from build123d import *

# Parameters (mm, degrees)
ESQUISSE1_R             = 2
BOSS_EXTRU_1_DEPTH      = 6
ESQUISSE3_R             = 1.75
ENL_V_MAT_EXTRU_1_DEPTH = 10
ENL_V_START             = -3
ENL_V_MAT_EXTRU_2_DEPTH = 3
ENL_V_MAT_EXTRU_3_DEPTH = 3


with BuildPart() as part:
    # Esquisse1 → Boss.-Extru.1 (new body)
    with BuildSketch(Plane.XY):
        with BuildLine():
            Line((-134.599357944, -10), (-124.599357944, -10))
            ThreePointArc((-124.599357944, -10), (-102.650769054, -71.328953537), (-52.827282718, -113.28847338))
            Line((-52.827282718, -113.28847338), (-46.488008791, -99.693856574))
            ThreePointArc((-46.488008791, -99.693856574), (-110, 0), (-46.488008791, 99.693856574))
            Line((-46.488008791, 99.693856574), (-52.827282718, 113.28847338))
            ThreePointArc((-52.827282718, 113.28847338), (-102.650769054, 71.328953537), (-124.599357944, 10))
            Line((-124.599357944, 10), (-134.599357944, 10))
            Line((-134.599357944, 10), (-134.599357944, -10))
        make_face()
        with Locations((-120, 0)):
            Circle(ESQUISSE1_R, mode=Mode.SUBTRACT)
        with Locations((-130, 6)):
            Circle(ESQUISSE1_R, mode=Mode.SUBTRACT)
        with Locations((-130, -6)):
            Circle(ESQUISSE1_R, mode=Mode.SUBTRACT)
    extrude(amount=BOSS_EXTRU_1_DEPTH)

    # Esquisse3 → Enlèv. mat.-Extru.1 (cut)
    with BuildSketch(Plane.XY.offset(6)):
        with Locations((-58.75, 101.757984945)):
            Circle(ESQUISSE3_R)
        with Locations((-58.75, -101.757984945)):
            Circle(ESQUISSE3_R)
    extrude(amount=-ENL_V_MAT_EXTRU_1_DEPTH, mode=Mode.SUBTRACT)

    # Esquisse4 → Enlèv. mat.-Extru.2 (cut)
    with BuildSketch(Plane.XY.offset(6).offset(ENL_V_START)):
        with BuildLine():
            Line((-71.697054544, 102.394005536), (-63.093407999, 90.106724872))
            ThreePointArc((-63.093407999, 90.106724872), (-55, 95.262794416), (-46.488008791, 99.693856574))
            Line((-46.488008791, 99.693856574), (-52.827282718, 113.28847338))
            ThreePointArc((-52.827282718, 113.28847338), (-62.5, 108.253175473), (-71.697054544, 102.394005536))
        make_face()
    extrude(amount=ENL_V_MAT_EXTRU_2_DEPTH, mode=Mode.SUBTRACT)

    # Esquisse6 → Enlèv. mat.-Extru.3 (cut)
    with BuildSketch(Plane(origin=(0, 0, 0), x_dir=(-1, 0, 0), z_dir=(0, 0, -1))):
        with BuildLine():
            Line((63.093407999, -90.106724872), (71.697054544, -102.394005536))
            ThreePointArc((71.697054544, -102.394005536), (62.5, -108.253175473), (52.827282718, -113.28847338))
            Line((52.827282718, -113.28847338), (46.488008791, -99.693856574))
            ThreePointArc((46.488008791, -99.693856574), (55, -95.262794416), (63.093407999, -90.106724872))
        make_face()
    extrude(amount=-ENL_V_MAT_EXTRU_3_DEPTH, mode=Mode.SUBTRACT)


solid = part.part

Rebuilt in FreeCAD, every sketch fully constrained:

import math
import FreeCAD as App
import Part
import Sketcher
from FreeCAD import Vector
Q = App.Units.Quantity

doc = App.newDocument("Part")
body = doc.addObject("PartDesign::Body", "Body")

sketch1 = body.newObject("Sketcher::SketchObject", "Sketch")
sketch1.AttachmentSupport = (doc.getObject("XY_Plane"), [""])
sketch1.MapMode = "FlatFace"
sketch1.addGeometry(Part.LineSegment(Vector(-134.6, -10, 0), Vector(-124.6, -10, 0)), False)
sketch1.addGeometry(Part.ArcOfCircle(Part.Circle(Vector(0, 0, 0), Vector(0, 0, 1), 125), math.radians(-175), math.radians(-115)), False)
sketch1.addGeometry(Part.LineSegment(Vector(-52.8, -113.3, 0), Vector(-46.5, -99.7, 0)), False)
sketch1.addGeometry(Part.ArcOfCircle(Part.Circle(Vector(0, 0, 0), Vector(0, 0, 1), 110), math.radians(115), math.radians(245)), False)
sketch1.addGeometry(Part.LineSegment(Vector(-46.5, 99.7, 0), Vector(-52.8, 113.3, 0)), False)
sketch1.addGeometry(Part.ArcOfCircle(Part.Circle(Vector(0, 0, 0), Vector(0, 0, 1), 125), math.radians(115), math.radians(175)), False)
sketch1.addGeometry(Part.LineSegment(Vector(-124.6, 10, 0), Vector(-134.6, 10, 0)), False)
sketch1.addGeometry(Part.LineSegment(Vector(-134.6, 10, 0), Vector(-134.6, -10, 0)), False)
sketch1.addGeometry(Part.Circle(Vector(-130, -6, 0), Vector(0, 0, 1), 2), False)
sketch1.addGeometry(Part.Circle(Vector(-120, 0, 0), Vector(0, 0, 1), 2), False)
sketch1.addGeometry(Part.Circle(Vector(-130, 6, 0), Vector(0, 0, 1), 2), False)
sketch1.addConstraint(Sketcher.Constraint("Coincident", 0, 2, 1, 1))
sketch1.addConstraint(Sketcher.Constraint("Coincident", 1, 2, 2, 1))
sketch1.addConstraint(Sketcher.Constraint("Coincident", 2, 2, 3, 2))
sketch1.addConstraint(Sketcher.Constraint("Coincident", 3, 1, 4, 1))
sketch1.addConstraint(Sketcher.Constraint("Coincident", 4, 2, 5, 1))
sketch1.addConstraint(Sketcher.Constraint("Coincident", 5, 2, 6, 1))
sketch1.addConstraint(Sketcher.Constraint("Coincident", 6, 2, 7, 1))
sketch1.addConstraint(Sketcher.Constraint("Coincident", 7, 2, 0, 1))
sketch1.addConstraint(Sketcher.Constraint("Horizontal", 0))
sketch1.addConstraint(Sketcher.Constraint("Horizontal", 6))
sketch1.addConstraint(Sketcher.Constraint("Vertical", 7))
sketch1.addConstraint(Sketcher.Constraint("Coincident", 1, 3, -1, 1))
sketch1.addConstraint(Sketcher.Constraint("Coincident", 3, 3, -1, 1))
sketch1.addConstraint(Sketcher.Constraint("Coincident", 5, 3, -1, 1))
sketch1.addConstraint(Sketcher.Constraint("Equal", 1, 5))
sketch1.addConstraint(Sketcher.Constraint("Equal", 8, 9))
sketch1.addConstraint(Sketcher.Constraint("Equal", 9, 10))
sketch1.addConstraint(Sketcher.Constraint("Symmetric", 8, 3, 10, 3, -1))
sketch1.addConstraint(Sketcher.Constraint("PointOnObject", 9, 3, -1))
sketch1.addConstraint(Sketcher.Constraint("Vertical", 2, 2, 3, 1))
sketch1.addConstraint(Sketcher.Constraint("Vertical", 1, 2, 4, 2))
sketch1.addConstraint(Sketcher.Constraint("Vertical", 0, 2, 5, 2))
sketch1.addConstraint(Sketcher.Constraint("Diameter", 8, Q("4 mm")))
sketch1.addConstraint(Sketcher.Constraint("Radius", 1, Q("125 mm")))
sketch1.addConstraint(Sketcher.Constraint("Radius", 3, Q("110 mm")))
sketch1.addConstraint(Sketcher.Constraint("DistanceX", 0, 1, 0, 2, Q("10 mm")))
sketch1.addConstraint(Sketcher.Constraint("DistanceY", 7, 2, 7, 1, Q("20 mm")))
sketch1.addConstraint(Sketcher.Constraint("Angle", 2, Q("65 deg")))
sketch1.addConstraint(Sketcher.Constraint("DistanceX", 8, 3, -1, 1, Q("130 mm")))
sketch1.addConstraint(Sketcher.Constraint("DistanceY", 8, 3, -1, 1, Q("6 mm")))
sketch1.addConstraint(Sketcher.Constraint("DistanceX", 9, 3, -1, 1, Q("120 mm")))
sketch1.addConstraint(Sketcher.Constraint("DistanceX", 2, 2, -1, 1, Q("46.488009 mm")))
pad1 = body.newObject("PartDesign::Pad", "Pad")
pad1.Profile = sketch1
pad1.Length = 6

sketch2 = body.newObject("Sketcher::SketchObject", "Sketch001")
sketch2.AttachmentSupport = (doc.getObject("XY_Plane"), [""])
sketch2.MapMode = "FlatFace"
sketch2.AttachmentOffset = App.Placement(Vector(0, 0, 6), App.Rotation())
sketch2.addGeometry(Part.Circle(Vector(-58.8, 101.8, 0), Vector(0, 0, 1), 1.8), False)
sketch2.addGeometry(Part.Circle(Vector(-58.8, -101.8, 0), Vector(0, 0, 1), 1.8), False)
sketch2.addConstraint(Sketcher.Constraint("Equal", 0, 1))
sketch2.addConstraint(Sketcher.Constraint("Symmetric", 0, 3, 1, 3, -1))
sketch2.addConstraint(Sketcher.Constraint("Diameter", 0, Q("3.5 mm")))
sketch2.addConstraint(Sketcher.Constraint("DistanceX", 0, 3, -1, 1, Q("58.75 mm")))
sketch2.addConstraint(Sketcher.Constraint("DistanceY", 1, 3, 0, 3, Q("203.51597 mm")))
pocket1 = body.newObject("PartDesign::Pocket", "Pocket")
pocket1.Profile = sketch2
pocket1.Length = 10

sketch3 = body.newObject("Sketcher::SketchObject", "Sketch002")
sketch3.AttachmentSupport = (doc.getObject("XY_Plane"), [""])
sketch3.MapMode = "FlatFace"
sketch3.AttachmentOffset = App.Placement(Vector(0, 0, 3), App.Rotation())
sketch3.addGeometry(Part.LineSegment(Vector(-72, 102, 0), Vector(-63, 90, 0)), False)
sketch3.addGeometry(Part.ArcOfCircle(Part.Circle(Vector(0, 0, 0), Vector(0, 0, 1), 110), math.radians(115), math.radians(125)), False)
sketch3.addGeometry(Part.LineSegment(Vector(-46, 100, 0), Vector(-53, 113, 0)), False)
sketch3.addGeometry(Part.ArcOfCircle(Part.Circle(Vector(0, 0, 0), Vector(0, 0, 1), 125), math.radians(115), math.radians(125)), False)
sketch3.addConstraint(Sketcher.Constraint("Coincident", 0, 2, 1, 2))
sketch3.addConstraint(Sketcher.Constraint("Coincident", 1, 1, 2, 1))
sketch3.addConstraint(Sketcher.Constraint("Coincident", 2, 2, 3, 1))
sketch3.addConstraint(Sketcher.Constraint("Coincident", 3, 2, 0, 1))
sketch3.addConstraint(Sketcher.Constraint("Coincident", 1, 3, -1, 1))
sketch3.addConstraint(Sketcher.Constraint("Coincident", 3, 3, -1, 1))
sketch3.addConstraint(Sketcher.Constraint("Radius", 1, Q("110 mm")))
sketch3.addConstraint(Sketcher.Constraint("Radius", 3, Q("125 mm")))
sketch3.addConstraint(Sketcher.Constraint("Angle", 0, Q("-55 deg")))
sketch3.addConstraint(Sketcher.Constraint("Angle", 2, Q("115 deg")))
sketch3.addConstraint(Sketcher.Constraint("DistanceX", 0, 2, 1, 1, Q("16.605399 mm")))
sketch3.addConstraint(Sketcher.Constraint("DistanceX", 1, 1, -1, 1, Q("46.488009 mm")))
pocket2 = body.newObject("PartDesign::Pocket", "Pocket001")
pocket2.Profile = sketch3
pocket2.Length = 3
pocket2.Reversed = True

sketch4 = body.newObject("Sketcher::SketchObject", "Sketch003")
sketch4.AttachmentSupport = (doc.getObject("XY_Plane"), [""])
sketch4.MapMode = "FlatFace"
sketch4.addGeometry(Part.LineSegment(Vector(-72, -102, 0), Vector(-63, -90, 0)), False)
sketch4.addGeometry(Part.ArcOfCircle(Part.Circle(Vector(0, 0, 0), Vector(0, 0, 1), 110), math.radians(-125), math.radians(-115)), False)
sketch4.addGeometry(Part.LineSegment(Vector(-46, -100, 0), Vector(-53, -113, 0)), False)
sketch4.addGeometry(Part.ArcOfCircle(Part.Circle(Vector(0, 0, 0), Vector(0, 0, 1), 125), math.radians(-125), math.radians(-115)), False)
sketch4.addConstraint(Sketcher.Constraint("Coincident", 0, 2, 1, 1))
sketch4.addConstraint(Sketcher.Constraint("Coincident", 1, 2, 2, 1))
sketch4.addConstraint(Sketcher.Constraint("Coincident", 2, 2, 3, 2))
sketch4.addConstraint(Sketcher.Constraint("Coincident", 3, 1, 0, 1))
sketch4.addConstraint(Sketcher.Constraint("Coincident", 1, 3, -1, 1))
sketch4.addConstraint(Sketcher.Constraint("Coincident", 3, 3, -1, 1))
sketch4.addConstraint(Sketcher.Constraint("Radius", 1, Q("110 mm")))
sketch4.addConstraint(Sketcher.Constraint("Radius", 3, Q("125 mm")))
sketch4.addConstraint(Sketcher.Constraint("Angle", 0, Q("55 deg")))
sketch4.addConstraint(Sketcher.Constraint("Angle", 2, Q("-115 deg")))
sketch4.addConstraint(Sketcher.Constraint("DistanceX", 0, 2, 1, 2, Q("16.605399 mm")))
sketch4.addConstraint(Sketcher.Constraint("DistanceX", 1, 2, -1, 1, Q("46.488009 mm")))
pocket3 = body.newObject("PartDesign::Pocket", "Pocket002")
pocket3.Profile = sketch4
pocket3.Length = 3
pocket3.Reversed = True

doc.recompute()
